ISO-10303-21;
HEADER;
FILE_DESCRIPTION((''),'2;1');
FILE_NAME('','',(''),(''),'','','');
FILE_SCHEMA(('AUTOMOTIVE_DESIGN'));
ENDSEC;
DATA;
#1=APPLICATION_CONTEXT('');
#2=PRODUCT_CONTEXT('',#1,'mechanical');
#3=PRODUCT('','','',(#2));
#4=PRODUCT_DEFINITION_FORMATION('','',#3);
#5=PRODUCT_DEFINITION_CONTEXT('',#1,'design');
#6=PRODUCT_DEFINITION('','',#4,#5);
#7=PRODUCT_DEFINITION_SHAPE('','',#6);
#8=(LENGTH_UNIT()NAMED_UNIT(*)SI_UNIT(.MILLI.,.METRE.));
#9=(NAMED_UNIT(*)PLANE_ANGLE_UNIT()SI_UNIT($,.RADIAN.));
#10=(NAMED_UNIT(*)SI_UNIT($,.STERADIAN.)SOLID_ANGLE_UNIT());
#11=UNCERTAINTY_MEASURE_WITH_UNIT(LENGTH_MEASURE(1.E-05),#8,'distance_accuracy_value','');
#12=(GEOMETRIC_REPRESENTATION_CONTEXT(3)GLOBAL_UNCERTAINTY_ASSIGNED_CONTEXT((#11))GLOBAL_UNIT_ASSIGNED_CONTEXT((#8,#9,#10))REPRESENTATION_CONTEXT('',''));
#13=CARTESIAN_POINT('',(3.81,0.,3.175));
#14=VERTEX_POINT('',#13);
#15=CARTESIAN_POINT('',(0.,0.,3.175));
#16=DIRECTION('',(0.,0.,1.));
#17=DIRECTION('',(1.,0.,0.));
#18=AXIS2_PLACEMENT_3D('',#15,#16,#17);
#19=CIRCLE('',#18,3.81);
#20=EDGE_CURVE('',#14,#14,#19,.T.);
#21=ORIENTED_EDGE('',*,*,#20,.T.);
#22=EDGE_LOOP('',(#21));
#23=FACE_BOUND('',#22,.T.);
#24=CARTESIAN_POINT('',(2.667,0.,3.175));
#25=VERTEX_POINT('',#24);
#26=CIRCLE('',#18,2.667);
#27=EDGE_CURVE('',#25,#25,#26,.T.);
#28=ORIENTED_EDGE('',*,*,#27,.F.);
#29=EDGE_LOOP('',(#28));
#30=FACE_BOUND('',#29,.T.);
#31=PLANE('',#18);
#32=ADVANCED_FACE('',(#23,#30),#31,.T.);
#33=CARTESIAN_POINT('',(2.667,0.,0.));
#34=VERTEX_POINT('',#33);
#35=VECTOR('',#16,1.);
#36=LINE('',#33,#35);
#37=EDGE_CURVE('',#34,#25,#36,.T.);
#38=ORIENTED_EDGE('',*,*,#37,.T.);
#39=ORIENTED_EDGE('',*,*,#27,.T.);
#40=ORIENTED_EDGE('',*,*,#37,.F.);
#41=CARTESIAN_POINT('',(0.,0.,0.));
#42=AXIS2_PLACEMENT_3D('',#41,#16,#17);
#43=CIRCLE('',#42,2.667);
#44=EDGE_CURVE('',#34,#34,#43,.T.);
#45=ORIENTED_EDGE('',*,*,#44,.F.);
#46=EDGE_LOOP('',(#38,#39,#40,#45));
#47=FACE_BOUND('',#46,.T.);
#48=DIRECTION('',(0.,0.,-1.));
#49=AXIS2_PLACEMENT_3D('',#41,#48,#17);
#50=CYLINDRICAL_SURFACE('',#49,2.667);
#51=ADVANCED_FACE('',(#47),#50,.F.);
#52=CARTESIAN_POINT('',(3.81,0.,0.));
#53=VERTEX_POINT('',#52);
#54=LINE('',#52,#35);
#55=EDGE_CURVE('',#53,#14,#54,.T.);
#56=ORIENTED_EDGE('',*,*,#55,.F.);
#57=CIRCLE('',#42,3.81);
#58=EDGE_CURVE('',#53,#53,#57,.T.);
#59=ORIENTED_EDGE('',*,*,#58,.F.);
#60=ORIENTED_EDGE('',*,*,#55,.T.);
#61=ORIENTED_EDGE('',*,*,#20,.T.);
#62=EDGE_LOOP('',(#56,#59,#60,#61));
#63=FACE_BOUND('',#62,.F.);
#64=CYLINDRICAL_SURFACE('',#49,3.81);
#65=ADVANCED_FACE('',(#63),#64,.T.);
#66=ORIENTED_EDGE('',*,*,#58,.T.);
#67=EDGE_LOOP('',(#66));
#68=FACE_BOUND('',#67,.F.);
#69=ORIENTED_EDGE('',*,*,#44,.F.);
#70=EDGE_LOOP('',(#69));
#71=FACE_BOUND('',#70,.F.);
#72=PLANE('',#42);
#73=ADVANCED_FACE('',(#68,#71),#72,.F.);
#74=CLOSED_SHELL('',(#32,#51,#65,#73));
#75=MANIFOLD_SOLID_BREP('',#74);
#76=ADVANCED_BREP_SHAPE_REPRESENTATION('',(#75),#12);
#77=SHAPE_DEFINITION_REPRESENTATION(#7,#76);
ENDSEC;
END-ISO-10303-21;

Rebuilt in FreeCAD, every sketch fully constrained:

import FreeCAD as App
import Part
import Sketcher
from FreeCAD import Vector
Q = App.Units.Quantity

doc = App.newDocument("Part")
body = doc.addObject("PartDesign::Body", "Body")

# Sketch on XY plane
sketch1 = body.newObject("Sketcher::SketchObject", "Sketch")
sketch1.AttachmentSupport = (doc.getObject("XY_Plane"), [""])
sketch1.MapMode = "FlatFace"
sketch1.addGeometry([
    Part.Circle(Vector(0, 0, 0), Vector(0, 0, 1), 3.8),
    Part.Circle(Vector(0, 0, 0), Vector(0, 0, 1), 2.7),
], False)
sketch1.addConstraint([
    Sketcher.Constraint("Coincident", 0, 3, -1, 1),
    Sketcher.Constraint("Coincident", 1, 3, -1, 1),
    Sketcher.Constraint("Diameter", 0, Q("0.3 in")),
    Sketcher.Constraint("Diameter", 1, Q("0.21 in")),
])
pad1 = body.newObject("PartDesign::Pad", "Pad")
pad1.Profile = sketch1
pad1.Length = Q("0.125 in")

doc.recompute()
